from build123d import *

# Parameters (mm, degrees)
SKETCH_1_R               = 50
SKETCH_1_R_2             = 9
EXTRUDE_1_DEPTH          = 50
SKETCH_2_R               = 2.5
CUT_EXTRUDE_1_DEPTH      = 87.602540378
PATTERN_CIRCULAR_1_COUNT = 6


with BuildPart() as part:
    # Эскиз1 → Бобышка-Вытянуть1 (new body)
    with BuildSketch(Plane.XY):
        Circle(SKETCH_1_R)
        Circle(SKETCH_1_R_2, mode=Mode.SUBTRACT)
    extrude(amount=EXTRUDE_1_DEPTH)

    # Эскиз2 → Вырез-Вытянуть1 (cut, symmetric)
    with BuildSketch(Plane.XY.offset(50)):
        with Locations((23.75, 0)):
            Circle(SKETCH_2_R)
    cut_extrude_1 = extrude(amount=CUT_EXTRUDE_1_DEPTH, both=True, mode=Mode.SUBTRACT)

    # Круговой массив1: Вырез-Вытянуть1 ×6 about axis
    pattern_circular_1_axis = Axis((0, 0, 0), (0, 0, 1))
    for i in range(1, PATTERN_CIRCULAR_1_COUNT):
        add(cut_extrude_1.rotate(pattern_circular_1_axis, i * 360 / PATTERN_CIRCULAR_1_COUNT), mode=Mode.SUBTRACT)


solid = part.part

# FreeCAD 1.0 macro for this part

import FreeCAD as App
import Part
import Sketcher
from FreeCAD import Vector

doc = App.newDocument("Part")
body = doc.addObject("PartDesign::Body", "Body")

# Sketch on XY plane
sketch1 = doc.addObject("Sketcher::SketchObject", "Sketch")
body.addObject(sketch1)
sketch1.AttachmentSupport = (doc.XY_Plane, [""])
sketch1.MapMode = "FlatFace"
sketch1.addGeometry([
    Part.Circle(Vector(0, 0, 0), Vector(0, 0, 1), 50),
    Part.Circle(Vector(0, 0, 0), Vector(0, 0, 1), 9),
], False)
sketch1.addConstraint([
    Sketcher.Constraint("Coincident", 0, 3, -1, 1),
    Sketcher.Constraint("Coincident", 1, 3, -1, 1),
    Sketcher.Constraint("Diameter", 0, 100.0),
    Sketcher.Constraint("Diameter", 1, 18.0),
])
pad1 = doc.addObject("PartDesign::Pad", "Pad")
body.addObject(pad1)
pad1.Profile = sketch1
pad1.Length = 50

# Sketch on XY plane
sketch2 = doc.addObject("Sketcher::SketchObject", "Sketch001")
body.addObject(sketch2)
sketch2.AttachmentSupport = (doc.XY_Plane, [""])
sketch2.MapMode = "FlatFace"
sketch2.AttachmentOffset = App.Placement(Vector(0, 0, 50), App.Rotation())
sketch2.addGeometry(Part.Circle(Vector(23.8, 0, 0), Vector(0, 0, 1), 2.5), False)
sketch2.addConstraint([
    Sketcher.Constraint("PointOnObject", 0, 3, -1),
    Sketcher.Constraint("Diameter", 0, 5.0),
    Sketcher.Constraint("DistanceX", -1, 1, 0, 3, 23.75),
])
pocket1 = doc.addObject("PartDesign::Pocket", "Pocket")
body.addObject(pocket1)
pocket1.Profile = sketch2
pocket1.Length = 175.205081
pocket1.Midplane = True
doc.recompute()

polarpattern = doc.addObject("PartDesign::PolarPattern", "PolarPattern")
body.addObject(polarpattern)
polarpattern.Originals = [pocket1]
polarpattern.Axis = (doc.Z_Axis, [""])
polarpattern.Angle = 360
polarpattern.Occurrences = 6
body.Tip = polarpattern

doc.recompute()
